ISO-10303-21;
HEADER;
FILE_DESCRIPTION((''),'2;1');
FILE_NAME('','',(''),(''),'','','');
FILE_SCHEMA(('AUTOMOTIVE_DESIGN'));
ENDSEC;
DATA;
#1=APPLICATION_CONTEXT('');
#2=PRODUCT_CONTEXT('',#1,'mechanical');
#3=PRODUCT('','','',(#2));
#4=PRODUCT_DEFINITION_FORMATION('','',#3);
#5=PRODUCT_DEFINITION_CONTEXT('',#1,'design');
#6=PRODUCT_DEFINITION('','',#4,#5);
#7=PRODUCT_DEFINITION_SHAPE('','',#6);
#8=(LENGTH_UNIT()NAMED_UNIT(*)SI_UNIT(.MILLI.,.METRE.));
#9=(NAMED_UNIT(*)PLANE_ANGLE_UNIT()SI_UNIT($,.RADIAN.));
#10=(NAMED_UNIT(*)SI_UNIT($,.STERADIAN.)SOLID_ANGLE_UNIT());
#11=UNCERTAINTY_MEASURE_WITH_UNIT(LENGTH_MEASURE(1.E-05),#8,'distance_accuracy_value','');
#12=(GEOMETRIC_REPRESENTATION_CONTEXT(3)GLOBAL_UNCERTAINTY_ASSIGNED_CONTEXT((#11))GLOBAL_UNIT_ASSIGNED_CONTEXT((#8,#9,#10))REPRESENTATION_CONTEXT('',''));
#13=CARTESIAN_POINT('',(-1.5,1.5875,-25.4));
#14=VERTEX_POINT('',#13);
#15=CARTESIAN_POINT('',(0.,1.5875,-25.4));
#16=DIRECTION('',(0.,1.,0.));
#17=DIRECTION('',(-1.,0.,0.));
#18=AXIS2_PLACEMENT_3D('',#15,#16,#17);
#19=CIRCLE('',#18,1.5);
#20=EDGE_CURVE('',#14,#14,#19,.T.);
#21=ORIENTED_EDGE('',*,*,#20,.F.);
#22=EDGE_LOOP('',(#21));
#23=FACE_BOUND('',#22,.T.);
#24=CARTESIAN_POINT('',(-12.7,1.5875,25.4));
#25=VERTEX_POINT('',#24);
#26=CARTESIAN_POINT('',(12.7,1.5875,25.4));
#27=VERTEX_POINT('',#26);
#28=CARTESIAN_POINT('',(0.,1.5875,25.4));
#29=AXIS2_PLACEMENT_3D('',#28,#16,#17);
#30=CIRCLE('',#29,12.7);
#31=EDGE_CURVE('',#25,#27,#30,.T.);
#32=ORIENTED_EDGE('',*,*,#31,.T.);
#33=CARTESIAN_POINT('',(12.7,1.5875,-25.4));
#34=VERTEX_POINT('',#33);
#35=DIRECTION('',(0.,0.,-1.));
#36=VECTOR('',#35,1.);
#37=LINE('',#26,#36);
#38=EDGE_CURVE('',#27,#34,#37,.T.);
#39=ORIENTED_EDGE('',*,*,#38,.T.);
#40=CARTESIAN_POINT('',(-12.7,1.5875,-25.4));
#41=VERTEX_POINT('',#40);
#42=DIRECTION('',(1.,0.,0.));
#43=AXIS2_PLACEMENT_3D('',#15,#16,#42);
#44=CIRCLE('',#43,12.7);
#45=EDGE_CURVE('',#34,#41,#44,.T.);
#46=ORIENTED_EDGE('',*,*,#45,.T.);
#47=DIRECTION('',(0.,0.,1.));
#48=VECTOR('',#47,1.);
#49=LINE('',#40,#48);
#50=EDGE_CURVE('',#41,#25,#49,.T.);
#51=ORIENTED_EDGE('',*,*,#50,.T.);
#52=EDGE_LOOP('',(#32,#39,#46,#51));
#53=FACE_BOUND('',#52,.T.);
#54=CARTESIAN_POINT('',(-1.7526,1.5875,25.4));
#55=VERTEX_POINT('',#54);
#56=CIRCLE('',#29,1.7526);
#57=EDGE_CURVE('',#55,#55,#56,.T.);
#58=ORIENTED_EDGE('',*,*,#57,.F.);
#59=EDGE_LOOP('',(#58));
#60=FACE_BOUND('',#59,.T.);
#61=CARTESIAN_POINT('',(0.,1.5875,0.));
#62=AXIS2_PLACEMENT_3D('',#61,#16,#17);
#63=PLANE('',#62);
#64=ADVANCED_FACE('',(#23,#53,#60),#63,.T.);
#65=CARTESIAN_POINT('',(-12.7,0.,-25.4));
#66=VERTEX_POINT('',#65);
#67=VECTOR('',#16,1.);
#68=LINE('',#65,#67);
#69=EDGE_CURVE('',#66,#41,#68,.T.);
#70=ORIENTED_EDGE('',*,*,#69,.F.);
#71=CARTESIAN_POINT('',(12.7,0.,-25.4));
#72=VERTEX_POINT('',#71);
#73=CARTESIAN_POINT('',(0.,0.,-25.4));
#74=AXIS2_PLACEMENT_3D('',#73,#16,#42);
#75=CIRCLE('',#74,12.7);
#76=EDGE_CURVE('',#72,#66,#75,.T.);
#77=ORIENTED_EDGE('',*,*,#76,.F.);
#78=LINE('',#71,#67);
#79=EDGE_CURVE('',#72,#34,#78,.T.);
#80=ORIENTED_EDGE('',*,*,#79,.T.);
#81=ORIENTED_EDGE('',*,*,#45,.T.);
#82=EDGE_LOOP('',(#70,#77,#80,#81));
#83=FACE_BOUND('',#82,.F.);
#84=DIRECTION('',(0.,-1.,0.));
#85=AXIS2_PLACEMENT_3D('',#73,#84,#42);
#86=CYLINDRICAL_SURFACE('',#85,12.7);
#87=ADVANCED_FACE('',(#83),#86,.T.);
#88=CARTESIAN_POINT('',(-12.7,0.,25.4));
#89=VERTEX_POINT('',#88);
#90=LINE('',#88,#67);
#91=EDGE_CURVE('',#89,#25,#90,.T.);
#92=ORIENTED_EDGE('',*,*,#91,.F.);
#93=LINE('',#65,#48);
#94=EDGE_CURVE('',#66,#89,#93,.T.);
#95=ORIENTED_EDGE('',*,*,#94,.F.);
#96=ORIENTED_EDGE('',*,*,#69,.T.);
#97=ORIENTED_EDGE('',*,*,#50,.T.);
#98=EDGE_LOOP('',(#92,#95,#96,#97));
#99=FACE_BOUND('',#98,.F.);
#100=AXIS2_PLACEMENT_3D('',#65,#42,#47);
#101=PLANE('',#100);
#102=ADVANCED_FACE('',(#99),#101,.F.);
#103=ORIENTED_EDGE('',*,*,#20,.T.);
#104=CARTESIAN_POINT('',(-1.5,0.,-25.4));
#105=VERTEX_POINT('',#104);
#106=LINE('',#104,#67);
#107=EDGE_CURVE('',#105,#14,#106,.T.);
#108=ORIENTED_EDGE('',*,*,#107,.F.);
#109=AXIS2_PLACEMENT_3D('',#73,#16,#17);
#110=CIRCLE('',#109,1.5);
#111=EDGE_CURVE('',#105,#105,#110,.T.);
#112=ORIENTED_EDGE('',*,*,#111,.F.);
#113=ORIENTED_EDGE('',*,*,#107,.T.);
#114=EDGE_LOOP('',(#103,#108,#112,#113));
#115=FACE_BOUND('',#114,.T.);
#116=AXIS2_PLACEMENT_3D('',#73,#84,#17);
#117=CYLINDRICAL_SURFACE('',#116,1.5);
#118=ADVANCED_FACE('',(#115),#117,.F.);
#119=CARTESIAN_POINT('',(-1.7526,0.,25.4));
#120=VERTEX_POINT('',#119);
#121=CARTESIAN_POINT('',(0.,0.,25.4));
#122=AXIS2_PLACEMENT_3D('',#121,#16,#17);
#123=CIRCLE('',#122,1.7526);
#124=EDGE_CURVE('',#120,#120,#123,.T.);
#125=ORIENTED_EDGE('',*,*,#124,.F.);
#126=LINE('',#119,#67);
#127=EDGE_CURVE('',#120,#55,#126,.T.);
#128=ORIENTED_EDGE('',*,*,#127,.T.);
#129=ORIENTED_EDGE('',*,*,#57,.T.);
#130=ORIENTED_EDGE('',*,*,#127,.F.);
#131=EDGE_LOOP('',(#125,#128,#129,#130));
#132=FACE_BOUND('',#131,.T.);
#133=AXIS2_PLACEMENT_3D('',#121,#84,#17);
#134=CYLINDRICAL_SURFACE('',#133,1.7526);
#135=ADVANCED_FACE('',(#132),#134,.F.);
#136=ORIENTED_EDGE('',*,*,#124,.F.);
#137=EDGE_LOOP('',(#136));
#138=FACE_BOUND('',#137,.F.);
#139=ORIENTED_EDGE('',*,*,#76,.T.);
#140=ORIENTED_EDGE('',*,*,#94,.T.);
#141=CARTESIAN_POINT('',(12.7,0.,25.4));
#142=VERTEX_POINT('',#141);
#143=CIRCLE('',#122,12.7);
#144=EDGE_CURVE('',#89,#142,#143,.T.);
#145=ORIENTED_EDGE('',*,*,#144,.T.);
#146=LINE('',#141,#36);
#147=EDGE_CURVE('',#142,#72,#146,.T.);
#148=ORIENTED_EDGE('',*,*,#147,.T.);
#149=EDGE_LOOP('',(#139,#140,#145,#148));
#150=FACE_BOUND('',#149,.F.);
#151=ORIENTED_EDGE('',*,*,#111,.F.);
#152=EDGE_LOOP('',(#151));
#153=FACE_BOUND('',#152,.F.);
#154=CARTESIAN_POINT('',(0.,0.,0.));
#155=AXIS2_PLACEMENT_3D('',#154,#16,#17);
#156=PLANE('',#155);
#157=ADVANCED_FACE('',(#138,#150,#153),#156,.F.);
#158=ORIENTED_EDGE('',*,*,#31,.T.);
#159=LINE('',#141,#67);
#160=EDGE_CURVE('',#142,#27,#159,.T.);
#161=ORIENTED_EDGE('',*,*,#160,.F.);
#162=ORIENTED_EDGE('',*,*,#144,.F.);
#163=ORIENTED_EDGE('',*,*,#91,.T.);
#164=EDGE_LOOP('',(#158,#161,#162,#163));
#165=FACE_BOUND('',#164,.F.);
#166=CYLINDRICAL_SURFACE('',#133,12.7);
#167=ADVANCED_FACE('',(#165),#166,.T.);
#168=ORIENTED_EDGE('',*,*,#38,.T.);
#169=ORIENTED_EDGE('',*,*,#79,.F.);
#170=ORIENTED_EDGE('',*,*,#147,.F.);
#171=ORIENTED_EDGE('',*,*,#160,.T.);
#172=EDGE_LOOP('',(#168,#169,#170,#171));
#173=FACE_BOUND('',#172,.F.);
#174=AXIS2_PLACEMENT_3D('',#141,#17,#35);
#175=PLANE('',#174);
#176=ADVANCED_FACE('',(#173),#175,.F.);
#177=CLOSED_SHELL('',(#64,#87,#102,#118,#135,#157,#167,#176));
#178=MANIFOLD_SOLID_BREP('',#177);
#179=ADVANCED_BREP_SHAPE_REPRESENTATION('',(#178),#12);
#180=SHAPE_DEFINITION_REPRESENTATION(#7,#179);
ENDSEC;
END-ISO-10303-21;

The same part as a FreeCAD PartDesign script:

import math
import FreeCAD as App
import Part
import Sketcher

V = App.Vector
Q = App.Units.Quantity

doc = App.newDocument("Part")
body = doc.addObject("PartDesign::Body", "Body")

sketch1 = doc.addObject("Sketcher::SketchObject", "Sketch")
body.addObject(sketch1)
sketch1.AttachmentSupport = (doc.XZ_Plane, [""])
sketch1.MapMode = "FlatFace"
sketch1.addGeometry(Part.ArcOfCircle(Part.Circle(V(0, 25.4, 0), V(0, 0, 1), 12.7), math.radians(0), math.radians(180)), False)
sketch1.addGeometry(Part.LineSegment(V(12.7, 25.4, 0), V(12.7, -25.4, 0)), False)
sketch1.addGeometry(Part.ArcOfCircle(Part.Circle(V(0, -25.4, 0), V(0, 0, 1), 12.7), math.radians(180), math.radians(360)), False)
sketch1.addGeometry(Part.LineSegment(V(-12.7, -25.4, 0), V(-12.7, 25.4, 0)), False)
sketch1.addGeometry(Part.Circle(V(0, -25.4, 0), V(0, 0, 1), 1.5), False)
sketch1.addGeometry(Part.Circle(V(0, 25.4, 0), V(0, 0, 1), 1.8), False)
sketch1.addConstraint(Sketcher.Constraint("Tangent", 0, 1, 1, 1))
sketch1.addConstraint(Sketcher.Constraint("Tangent", 1, 2, 2, 2))
sketch1.addConstraint(Sketcher.Constraint("Tangent", 2, 1, 3, 1))
sketch1.addConstraint(Sketcher.Constraint("Tangent", 3, 2, 0, 2))
sketch1.addConstraint(Sketcher.Constraint("Vertical", 1))
sketch1.addConstraint(Sketcher.Constraint("Vertical", 3))
sketch1.addConstraint(Sketcher.Constraint("Coincident", 4, 3, 2, 3))
sketch1.addConstraint(Sketcher.Constraint("Coincident", 5, 3, 0, 3))
sketch1.addConstraint(Sketcher.Constraint("Symmetric", 0, 3, 2, 3, -1, 1))
sketch1.addConstraint(Sketcher.Constraint("Radius", 0, Q("0.5 in")))
sketch1.addConstraint(Sketcher.Constraint("DistanceY", 1, 2, 1, 1, Q("2 in")))
sketch1.addConstraint(Sketcher.Constraint("Diameter", 5, Q("0.138 in")))
sketch1.addConstraint(Sketcher.Constraint("Diameter", 4, Q("0.1181 in")))
pad1 = doc.addObject("PartDesign::Pad", "Pad")
body.addObject(pad1)
pad1.Profile = sketch1
pad1.Length = Q("0.0625 in")
pad1.Reversed = True

doc.recompute()
